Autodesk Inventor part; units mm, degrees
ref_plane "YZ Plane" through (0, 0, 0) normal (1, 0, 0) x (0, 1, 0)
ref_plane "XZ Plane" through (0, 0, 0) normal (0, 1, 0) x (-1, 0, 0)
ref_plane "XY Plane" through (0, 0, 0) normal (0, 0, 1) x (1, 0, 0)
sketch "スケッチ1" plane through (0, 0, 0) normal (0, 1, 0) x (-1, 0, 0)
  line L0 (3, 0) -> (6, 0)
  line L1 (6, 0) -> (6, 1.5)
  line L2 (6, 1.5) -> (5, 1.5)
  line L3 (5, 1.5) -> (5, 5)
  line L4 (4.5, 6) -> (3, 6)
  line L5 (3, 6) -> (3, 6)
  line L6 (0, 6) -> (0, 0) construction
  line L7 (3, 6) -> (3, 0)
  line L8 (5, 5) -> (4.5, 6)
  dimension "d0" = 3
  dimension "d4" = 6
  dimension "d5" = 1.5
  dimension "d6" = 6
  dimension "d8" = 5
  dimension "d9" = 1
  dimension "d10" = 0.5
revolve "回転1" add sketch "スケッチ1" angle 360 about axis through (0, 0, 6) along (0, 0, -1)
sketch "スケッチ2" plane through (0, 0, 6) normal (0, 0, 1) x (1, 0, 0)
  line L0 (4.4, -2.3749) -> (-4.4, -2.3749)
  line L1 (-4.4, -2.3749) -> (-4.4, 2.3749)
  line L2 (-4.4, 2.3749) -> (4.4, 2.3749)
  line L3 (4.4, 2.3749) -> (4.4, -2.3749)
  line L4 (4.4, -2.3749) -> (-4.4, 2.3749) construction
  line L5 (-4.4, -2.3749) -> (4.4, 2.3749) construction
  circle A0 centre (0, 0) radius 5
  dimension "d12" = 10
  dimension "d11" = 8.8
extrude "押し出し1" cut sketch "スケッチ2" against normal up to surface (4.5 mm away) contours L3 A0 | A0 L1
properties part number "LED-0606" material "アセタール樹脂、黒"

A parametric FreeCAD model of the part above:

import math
import FreeCAD as App
import Part
import Sketcher

V = App.Vector
Q = App.Units.Quantity

doc = App.newDocument("Part")
params = doc.addObject("Spreadsheet::Sheet", "Params")
for row, (alias, value) in enumerate([
    ("sketch1_width", "3 mm"),
    ("sketch1_width2", "1 mm"),
    ("sketch1_height", "6 mm"),
    ("sketch1_width3", "1.5 mm"),
    ("revolution_angle", "360 deg"),
    ("sketch2_radius", "5 mm"),
    ("pocket1_length", "4.5 mm"),
], start=1):
    params.set(f"A{row}", alias)
    params.set(f"B{row}", "=" + value)
    params.setAlias(f"B{row}", alias)

body = doc.addObject("PartDesign::Body", "Body")

# Sketch on XZ plane
sketch1 = body.newObject("Sketcher::SketchObject", "Sketch")
sketch1.AttachmentSupport = (doc.getObject("XZ_Plane"), [""])
sketch1.MapMode = "FlatFace"
sketch1.addGeometry(Part.LineSegment(V(-3, 6, 0), V(-3, 0, 0)), False)
sketch1.addGeometry(Part.LineSegment(V(-3, 0, 0), V(-6, 0, 0)), False)
sketch1.addGeometry(Part.LineSegment(V(-6, 0, 0), V(-6, 1.5, 0)), False)
sketch1.addGeometry(Part.LineSegment(V(-6, 1.5, 0), V(-5, 1.5, 0)), False)
sketch1.addGeometry(Part.LineSegment(V(-5, 1.5, 0), V(-5, 5, 0)), False)
sketch1.addGeometry(Part.LineSegment(V(-5, 5, 0), V(-4.5, 6, 0)), False)
sketch1.addGeometry(Part.LineSegment(V(-4.5, 6, 0), V(-3, 6, 0)), False)
sketch1.addConstraint(Sketcher.Constraint("Coincident", 0, 2, 1, 1))
sketch1.addConstraint(Sketcher.Constraint("Coincident", 1, 2, 2, 1))
sketch1.addConstraint(Sketcher.Constraint("Coincident", 2, 2, 3, 1))
sketch1.addConstraint(Sketcher.Constraint("Coincident", 3, 2, 4, 1))
sketch1.addConstraint(Sketcher.Constraint("Coincident", 4, 2, 5, 1))
sketch1.addConstraint(Sketcher.Constraint("Coincident", 5, 2, 6, 1))
sketch1.addConstraint(Sketcher.Constraint("Coincident", 6, 2, 0, 1))
sketch1.addConstraint(Sketcher.Constraint("Vertical", 0))
sketch1.addConstraint(Sketcher.Constraint("Horizontal", 1))
sketch1.addConstraint(Sketcher.Constraint("Vertical", 2))
sketch1.addConstraint(Sketcher.Constraint("Horizontal", 3))
sketch1.addConstraint(Sketcher.Constraint("Vertical", 4))
sketch1.addConstraint(Sketcher.Constraint("Horizontal", 6))
sketch1.addConstraint(Sketcher.Constraint("PointOnObject", 0, 2, -1))
sketch1.addConstraint(Sketcher.Constraint("Equal", 6, 2))
sketch1.addConstraint(Sketcher.Constraint("DistanceX", 1, 2, 1, 1, Q("3 mm")))
sketch1.addConstraint(Sketcher.Constraint("DistanceX", 3, 1, 3, 2, Q("1 mm")))
sketch1.addConstraint(Sketcher.Constraint("DistanceY", 0, 2, 0, 1, Q("6 mm")))
sketch1.addConstraint(Sketcher.Constraint("DistanceX", 6, 1, 6, 2, Q("1.5 mm")))
sketch1.addConstraint(Sketcher.Constraint("DistanceX", 0, 2, -1, 1, Q("3 mm")))
sketch1.addConstraint(Sketcher.Constraint("DistanceY", -1, 1, 4, 2, Q("5 mm")))
sketch1.setExpression("Constraints[15]", "Params.sketch1_width")
sketch1.setExpression("Constraints[16]", "Params.sketch1_width2")
sketch1.setExpression("Constraints[17]", "Params.sketch1_height")
sketch1.setExpression("Constraints[18]", "Params.sketch1_width3")
revolution = body.newObject("PartDesign::Revolution", "Revolution")
revolution.Profile = sketch1
revolution.ReferenceAxis = (sketch1, ["V_Axis"])
revolution.setExpression("Angle", "Params.revolution_angle")

# Sketch on XY plane
sketch2 = body.newObject("Sketcher::SketchObject", "Sketch001")
sketch2.AttachmentSupport = (doc.getObject("XY_Plane"), [""])
sketch2.MapMode = "FlatFace"
sketch2.AttachmentOffset = App.Placement(V(0, 0, 6), App.Rotation())
sketch2.addGeometry(Part.LineSegment(V(4.4, 2.3749, 0), V(4.4, -2.3749, 0)), False)
sketch2.addGeometry(Part.ArcOfCircle(Part.Circle(V(0, 0, 0), V(0, 0, 1), 5), math.radians(-28.357955), math.radians(28.357955)), False)
sketch2.addGeometry(Part.ArcOfCircle(Part.Circle(V(0, 0, 0), V(0, 0, 1), 5), math.radians(151.642045), math.radians(208.357955)), False)
sketch2.addGeometry(Part.LineSegment(V(-4.4, 2.3749, 0), V(-4.4, -2.3749, 0)), False)
sketch2.addConstraint(Sketcher.Constraint("Coincident", 0, 1, 1, 2))
sketch2.addConstraint(Sketcher.Constraint("Coincident", 1, 1, 0, 2))
sketch2.addConstraint(Sketcher.Constraint("Coincident", 2, 1, 3, 1))
sketch2.addConstraint(Sketcher.Constraint("Coincident", 3, 2, 2, 2))
sketch2.addConstraint(Sketcher.Constraint("Vertical", 0))
sketch2.addConstraint(Sketcher.Constraint("Vertical", 3))
sketch2.addConstraint(Sketcher.Constraint("Coincident", 1, 3, -1, 1))
sketch2.addConstraint(Sketcher.Constraint("Coincident", 2, 3, -1, 1))
sketch2.addConstraint(Sketcher.Constraint("Equal", 1, 2))
sketch2.addConstraint(Sketcher.Constraint("Horizontal", 0, 1, 2, 1))
sketch2.addConstraint(Sketcher.Constraint("Radius", 1, Q("5 mm")))
sketch2.addConstraint(Sketcher.Constraint("DistanceX", 2, 1, 0, 1, Q("8.8 mm")))
sketch2.setExpression("Constraints[10]", "Params.sketch2_radius")
pocket1 = body.newObject("PartDesign::Pocket", "Pocket")
pocket1.Profile = sketch2
pocket1.setExpression("Length", "Params.pocket1_length")

doc.recompute()
